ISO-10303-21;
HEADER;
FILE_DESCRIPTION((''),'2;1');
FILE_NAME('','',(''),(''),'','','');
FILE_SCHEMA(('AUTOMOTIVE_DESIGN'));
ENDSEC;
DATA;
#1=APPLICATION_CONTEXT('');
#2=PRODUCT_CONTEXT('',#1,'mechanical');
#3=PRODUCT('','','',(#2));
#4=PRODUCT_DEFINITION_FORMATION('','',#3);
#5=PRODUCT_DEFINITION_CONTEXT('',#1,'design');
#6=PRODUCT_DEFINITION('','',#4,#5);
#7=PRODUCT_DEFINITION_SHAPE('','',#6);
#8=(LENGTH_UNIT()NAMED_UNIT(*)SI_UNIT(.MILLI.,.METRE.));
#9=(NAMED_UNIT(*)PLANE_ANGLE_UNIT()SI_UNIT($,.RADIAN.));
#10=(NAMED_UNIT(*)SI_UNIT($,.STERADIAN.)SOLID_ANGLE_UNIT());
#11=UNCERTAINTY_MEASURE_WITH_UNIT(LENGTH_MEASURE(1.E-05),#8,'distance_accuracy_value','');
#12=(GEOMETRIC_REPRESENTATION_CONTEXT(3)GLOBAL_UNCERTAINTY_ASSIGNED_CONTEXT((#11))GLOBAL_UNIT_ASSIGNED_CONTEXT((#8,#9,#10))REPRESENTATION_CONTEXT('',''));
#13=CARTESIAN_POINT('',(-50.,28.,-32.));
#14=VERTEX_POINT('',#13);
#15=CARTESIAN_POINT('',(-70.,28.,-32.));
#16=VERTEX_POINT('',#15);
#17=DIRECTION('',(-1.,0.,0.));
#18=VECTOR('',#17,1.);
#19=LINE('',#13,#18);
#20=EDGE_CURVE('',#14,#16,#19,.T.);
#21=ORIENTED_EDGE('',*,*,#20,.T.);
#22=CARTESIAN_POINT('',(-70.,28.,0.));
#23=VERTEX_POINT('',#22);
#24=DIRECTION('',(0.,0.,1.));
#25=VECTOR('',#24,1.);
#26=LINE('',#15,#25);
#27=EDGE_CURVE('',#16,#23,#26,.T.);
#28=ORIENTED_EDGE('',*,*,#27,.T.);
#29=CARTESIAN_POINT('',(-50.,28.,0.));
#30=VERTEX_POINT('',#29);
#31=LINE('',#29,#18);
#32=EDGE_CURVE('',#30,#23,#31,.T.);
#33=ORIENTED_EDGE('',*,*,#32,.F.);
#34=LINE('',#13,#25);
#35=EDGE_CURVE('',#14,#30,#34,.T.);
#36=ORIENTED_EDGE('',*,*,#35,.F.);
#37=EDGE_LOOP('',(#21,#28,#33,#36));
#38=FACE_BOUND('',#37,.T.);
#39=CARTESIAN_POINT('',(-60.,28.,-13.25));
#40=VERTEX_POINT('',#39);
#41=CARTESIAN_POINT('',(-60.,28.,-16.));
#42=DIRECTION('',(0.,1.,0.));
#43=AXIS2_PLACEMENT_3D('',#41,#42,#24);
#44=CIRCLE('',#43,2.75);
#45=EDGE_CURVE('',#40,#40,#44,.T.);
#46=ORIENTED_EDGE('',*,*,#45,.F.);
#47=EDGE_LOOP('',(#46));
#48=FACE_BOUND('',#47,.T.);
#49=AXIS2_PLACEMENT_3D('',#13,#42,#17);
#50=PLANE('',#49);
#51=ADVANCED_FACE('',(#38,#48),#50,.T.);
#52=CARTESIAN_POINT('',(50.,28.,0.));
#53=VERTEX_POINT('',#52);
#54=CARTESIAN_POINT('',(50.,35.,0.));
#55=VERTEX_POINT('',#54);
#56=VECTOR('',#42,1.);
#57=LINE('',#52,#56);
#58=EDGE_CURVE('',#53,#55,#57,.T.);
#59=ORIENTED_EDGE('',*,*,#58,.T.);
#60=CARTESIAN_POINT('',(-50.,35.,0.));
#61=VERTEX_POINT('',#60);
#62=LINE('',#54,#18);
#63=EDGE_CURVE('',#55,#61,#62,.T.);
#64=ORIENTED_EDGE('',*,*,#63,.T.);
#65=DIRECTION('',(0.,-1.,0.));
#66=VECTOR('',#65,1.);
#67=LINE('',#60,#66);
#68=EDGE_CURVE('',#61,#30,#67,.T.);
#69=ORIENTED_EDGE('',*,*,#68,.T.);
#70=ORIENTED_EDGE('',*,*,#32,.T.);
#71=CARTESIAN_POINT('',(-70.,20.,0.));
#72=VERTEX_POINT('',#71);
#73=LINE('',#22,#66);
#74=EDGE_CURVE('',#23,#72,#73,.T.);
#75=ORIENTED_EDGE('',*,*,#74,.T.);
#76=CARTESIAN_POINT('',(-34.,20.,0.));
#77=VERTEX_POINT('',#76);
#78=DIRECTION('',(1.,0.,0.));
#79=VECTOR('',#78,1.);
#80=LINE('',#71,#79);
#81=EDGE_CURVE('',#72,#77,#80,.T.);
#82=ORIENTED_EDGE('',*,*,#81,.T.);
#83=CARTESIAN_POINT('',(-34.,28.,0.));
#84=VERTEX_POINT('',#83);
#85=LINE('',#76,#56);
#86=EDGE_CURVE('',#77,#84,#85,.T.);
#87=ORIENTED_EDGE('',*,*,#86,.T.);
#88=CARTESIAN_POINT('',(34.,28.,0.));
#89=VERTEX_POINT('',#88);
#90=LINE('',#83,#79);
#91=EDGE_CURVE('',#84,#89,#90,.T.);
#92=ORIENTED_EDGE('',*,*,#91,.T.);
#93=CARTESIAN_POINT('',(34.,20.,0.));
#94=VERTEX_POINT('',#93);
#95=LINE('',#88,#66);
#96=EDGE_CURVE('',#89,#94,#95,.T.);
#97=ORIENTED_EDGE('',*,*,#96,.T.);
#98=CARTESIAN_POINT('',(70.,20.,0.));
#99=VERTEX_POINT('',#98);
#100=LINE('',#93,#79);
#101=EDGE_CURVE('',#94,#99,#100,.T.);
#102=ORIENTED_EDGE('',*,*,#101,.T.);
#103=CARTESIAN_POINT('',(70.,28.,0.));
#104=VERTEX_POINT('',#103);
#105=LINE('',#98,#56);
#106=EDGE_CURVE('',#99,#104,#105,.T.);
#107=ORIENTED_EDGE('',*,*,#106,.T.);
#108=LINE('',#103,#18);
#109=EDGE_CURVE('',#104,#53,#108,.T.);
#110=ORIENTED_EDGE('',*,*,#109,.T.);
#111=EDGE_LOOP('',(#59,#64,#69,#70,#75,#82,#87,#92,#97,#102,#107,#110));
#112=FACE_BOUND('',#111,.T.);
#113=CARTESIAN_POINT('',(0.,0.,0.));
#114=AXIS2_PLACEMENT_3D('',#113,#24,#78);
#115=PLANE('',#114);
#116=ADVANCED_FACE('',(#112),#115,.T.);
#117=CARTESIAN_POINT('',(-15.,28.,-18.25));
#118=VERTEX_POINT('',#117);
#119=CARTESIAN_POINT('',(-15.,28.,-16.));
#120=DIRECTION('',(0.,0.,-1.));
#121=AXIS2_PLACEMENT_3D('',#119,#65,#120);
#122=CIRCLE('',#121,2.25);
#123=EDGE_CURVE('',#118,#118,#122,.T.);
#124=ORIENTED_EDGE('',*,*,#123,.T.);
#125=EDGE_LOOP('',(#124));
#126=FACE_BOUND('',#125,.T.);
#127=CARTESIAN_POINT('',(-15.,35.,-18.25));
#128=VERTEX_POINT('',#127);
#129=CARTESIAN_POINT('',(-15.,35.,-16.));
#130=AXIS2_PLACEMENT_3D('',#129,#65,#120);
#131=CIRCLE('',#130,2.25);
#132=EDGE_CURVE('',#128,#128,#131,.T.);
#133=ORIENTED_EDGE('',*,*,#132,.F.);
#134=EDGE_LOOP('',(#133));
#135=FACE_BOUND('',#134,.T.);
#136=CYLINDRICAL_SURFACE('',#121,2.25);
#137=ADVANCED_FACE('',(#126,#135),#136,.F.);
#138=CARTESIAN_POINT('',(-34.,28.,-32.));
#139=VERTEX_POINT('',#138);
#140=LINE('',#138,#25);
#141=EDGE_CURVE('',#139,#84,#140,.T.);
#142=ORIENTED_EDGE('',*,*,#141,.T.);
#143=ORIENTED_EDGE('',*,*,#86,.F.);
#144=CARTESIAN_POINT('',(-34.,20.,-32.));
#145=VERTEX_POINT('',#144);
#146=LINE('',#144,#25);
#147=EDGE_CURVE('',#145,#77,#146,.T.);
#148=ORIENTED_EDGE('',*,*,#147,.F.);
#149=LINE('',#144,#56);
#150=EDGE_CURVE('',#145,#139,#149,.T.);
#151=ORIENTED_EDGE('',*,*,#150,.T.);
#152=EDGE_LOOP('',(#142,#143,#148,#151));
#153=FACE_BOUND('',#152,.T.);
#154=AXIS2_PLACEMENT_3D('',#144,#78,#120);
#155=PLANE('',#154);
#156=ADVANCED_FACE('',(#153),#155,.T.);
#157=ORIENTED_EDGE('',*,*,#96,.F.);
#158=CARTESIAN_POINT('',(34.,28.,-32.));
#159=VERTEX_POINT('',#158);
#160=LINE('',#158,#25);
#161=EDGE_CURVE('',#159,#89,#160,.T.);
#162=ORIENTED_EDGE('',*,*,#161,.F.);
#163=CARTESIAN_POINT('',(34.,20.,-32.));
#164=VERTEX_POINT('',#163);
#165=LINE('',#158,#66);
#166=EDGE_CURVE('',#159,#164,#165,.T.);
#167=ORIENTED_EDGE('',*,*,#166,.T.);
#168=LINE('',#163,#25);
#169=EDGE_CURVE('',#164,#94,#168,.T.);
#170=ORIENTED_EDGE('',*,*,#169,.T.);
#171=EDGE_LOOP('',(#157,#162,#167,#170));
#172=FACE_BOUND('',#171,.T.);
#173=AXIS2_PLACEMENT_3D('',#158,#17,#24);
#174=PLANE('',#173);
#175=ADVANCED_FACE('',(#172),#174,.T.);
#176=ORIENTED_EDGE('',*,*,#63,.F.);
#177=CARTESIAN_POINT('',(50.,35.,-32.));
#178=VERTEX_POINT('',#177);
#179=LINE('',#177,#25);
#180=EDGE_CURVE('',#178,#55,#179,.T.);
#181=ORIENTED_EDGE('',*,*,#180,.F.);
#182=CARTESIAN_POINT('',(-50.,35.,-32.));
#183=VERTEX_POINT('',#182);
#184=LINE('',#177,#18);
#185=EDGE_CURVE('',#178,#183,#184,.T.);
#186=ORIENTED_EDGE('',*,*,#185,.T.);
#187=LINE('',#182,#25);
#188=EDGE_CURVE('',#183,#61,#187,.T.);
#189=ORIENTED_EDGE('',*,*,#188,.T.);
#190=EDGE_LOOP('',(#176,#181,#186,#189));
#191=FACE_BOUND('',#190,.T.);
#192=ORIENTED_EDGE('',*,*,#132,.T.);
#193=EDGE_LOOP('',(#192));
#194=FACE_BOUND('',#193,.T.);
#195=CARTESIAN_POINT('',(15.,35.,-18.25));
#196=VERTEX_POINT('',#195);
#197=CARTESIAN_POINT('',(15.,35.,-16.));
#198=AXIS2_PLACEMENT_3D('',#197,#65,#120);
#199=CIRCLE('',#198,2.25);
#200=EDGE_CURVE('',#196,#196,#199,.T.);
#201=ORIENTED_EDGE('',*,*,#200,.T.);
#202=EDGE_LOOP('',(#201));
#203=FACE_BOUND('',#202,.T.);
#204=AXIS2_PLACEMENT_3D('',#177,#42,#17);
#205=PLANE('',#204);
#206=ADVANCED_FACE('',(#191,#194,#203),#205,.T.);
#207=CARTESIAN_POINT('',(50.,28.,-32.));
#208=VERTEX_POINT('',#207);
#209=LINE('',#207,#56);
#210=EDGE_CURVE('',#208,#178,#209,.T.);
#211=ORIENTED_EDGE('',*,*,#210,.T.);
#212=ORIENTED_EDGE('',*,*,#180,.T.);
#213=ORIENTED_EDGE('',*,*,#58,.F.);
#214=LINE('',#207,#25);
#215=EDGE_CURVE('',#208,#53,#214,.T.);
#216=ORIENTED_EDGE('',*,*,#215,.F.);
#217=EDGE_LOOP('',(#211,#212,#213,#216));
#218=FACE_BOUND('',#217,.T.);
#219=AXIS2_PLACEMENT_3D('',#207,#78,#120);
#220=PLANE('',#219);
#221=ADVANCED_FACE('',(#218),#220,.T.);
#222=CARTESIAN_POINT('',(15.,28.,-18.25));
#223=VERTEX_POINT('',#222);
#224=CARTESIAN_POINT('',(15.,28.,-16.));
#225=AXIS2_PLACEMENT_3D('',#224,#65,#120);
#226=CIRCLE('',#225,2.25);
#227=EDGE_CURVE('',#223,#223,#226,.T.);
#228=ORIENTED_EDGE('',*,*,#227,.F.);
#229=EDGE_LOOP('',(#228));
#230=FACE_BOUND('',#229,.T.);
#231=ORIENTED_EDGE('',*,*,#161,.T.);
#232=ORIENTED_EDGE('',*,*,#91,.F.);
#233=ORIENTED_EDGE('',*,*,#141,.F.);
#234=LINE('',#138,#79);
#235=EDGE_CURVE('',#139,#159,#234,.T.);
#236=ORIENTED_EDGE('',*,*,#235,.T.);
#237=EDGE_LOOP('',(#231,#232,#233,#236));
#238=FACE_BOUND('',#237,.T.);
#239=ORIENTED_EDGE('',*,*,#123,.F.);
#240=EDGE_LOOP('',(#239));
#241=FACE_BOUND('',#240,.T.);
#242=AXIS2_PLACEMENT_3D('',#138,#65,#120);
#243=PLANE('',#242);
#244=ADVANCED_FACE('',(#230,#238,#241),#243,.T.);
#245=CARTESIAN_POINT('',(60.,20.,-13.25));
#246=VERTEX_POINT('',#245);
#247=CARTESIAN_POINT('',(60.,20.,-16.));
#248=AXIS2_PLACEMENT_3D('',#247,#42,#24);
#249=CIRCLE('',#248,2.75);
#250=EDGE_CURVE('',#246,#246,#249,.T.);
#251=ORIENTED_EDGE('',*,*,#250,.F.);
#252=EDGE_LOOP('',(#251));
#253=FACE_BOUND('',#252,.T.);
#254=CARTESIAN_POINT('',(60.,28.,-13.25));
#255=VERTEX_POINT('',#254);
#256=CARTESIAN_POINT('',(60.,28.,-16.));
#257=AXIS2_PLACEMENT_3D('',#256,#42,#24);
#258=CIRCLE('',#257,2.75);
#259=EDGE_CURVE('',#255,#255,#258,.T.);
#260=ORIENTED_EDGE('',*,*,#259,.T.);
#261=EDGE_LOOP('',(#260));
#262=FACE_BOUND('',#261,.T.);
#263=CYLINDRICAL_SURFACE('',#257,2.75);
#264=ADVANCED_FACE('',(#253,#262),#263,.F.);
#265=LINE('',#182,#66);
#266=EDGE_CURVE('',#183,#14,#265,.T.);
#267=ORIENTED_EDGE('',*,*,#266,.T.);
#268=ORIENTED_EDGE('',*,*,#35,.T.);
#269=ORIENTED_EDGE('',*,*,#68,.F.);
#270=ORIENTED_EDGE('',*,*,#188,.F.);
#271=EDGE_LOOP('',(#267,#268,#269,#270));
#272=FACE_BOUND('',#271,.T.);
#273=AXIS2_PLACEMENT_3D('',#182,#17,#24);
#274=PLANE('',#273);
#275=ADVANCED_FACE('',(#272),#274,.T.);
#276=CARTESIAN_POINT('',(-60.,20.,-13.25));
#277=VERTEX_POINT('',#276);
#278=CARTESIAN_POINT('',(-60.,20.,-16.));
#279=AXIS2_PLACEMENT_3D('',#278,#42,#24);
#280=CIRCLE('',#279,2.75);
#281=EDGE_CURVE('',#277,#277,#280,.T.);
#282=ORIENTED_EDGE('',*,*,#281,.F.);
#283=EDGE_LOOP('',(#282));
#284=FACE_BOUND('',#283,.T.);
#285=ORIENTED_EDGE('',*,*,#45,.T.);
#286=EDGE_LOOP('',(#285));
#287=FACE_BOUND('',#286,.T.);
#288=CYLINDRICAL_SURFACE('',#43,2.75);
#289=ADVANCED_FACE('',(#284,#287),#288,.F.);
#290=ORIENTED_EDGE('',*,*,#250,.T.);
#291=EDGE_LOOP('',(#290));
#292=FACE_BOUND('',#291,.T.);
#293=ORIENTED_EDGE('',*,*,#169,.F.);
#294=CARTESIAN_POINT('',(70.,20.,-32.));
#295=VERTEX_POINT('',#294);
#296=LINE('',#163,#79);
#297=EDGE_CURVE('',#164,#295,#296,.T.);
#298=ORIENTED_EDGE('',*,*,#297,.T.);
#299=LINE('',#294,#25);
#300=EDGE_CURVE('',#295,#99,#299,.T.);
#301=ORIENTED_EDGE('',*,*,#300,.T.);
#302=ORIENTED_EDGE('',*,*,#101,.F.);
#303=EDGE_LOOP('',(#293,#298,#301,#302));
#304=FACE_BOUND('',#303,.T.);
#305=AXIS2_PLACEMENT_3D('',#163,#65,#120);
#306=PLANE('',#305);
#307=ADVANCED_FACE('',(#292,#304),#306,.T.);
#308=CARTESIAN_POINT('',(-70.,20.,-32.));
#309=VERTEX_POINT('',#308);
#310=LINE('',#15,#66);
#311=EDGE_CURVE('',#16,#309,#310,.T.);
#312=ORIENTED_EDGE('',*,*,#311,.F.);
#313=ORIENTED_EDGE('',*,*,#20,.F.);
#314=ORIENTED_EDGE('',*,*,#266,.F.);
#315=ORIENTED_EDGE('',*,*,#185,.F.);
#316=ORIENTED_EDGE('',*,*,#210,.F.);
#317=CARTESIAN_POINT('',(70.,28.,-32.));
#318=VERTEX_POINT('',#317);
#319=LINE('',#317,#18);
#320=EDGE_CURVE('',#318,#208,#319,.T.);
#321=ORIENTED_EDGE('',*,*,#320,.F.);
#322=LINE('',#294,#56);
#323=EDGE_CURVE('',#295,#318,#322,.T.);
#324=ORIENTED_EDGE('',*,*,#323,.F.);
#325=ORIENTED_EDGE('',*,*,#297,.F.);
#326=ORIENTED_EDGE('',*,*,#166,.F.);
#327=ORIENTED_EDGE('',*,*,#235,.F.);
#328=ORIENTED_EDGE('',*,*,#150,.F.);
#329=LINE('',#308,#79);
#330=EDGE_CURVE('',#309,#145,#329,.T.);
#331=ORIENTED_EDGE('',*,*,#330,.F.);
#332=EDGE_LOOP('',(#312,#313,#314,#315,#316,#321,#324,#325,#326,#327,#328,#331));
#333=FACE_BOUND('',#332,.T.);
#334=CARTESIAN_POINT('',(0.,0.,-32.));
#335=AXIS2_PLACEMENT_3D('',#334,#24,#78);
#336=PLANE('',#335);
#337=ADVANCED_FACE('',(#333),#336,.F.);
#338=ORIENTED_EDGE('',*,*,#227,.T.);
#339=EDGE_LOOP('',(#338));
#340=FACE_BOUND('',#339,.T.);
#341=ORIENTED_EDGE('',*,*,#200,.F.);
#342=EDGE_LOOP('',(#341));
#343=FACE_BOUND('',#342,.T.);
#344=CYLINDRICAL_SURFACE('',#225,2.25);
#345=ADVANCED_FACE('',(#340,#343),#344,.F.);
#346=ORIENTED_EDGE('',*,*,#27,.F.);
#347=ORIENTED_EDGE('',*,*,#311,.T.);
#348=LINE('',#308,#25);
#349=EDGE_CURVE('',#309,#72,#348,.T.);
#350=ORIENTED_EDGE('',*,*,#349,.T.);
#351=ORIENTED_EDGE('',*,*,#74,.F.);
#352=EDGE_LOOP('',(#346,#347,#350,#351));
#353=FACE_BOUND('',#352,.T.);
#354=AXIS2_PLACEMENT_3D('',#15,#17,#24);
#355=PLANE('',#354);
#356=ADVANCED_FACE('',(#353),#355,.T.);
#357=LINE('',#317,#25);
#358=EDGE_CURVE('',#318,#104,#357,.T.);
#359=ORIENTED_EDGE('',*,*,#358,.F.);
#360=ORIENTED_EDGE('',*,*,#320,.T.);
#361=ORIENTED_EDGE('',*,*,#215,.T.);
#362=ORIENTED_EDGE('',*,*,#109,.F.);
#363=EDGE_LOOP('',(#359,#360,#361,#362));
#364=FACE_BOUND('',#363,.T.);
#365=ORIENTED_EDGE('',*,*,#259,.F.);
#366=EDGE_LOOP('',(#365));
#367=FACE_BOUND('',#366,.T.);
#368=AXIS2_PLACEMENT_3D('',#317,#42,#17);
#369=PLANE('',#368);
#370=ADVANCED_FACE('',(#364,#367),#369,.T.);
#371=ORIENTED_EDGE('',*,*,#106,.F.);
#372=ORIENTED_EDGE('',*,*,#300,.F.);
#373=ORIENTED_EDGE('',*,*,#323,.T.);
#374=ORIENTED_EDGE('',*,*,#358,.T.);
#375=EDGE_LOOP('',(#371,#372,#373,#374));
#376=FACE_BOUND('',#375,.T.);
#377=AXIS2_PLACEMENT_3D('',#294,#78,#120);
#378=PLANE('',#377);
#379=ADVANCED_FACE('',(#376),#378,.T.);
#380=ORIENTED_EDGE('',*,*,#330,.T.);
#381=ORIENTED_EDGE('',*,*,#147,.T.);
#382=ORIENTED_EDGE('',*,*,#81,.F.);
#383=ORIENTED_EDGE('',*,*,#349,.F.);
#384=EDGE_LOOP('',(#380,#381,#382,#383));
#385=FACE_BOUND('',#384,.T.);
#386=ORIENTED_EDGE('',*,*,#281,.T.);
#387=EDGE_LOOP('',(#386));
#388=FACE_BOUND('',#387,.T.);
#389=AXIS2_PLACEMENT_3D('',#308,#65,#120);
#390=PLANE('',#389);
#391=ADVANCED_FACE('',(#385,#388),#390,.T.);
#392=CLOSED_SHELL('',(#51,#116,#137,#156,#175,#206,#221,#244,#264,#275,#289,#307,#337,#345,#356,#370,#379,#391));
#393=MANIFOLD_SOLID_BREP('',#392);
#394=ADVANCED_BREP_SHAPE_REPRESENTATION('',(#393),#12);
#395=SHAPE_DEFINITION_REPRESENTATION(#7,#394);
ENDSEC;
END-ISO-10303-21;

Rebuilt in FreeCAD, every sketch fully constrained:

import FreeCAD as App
import Part
import Sketcher


def add_polygon(sketch, points):
    """Adds a closed chain of lines whose ends are joined by coincident constraints."""
    first, n = sketch.GeometryCount, len(points)
    for a, b in zip(points, points[1:] + points[:1]):
        sketch.addGeometry(Part.LineSegment(App.Vector(*a, 0), App.Vector(*b, 0)), False)
    for i in range(n):
        sketch.addConstraint(Sketcher.Constraint("Coincident", first + i, 2, first + (i + 1) % n, 1))

doc = App.newDocument("Part")
body = doc.addObject("PartDesign::Body", "Body")

# Sketch on XY plane
sketch1 = doc.addObject("Sketcher::SketchObject", "Sketch")
body.addObject(sketch1)
sketch1.AttachmentSupport = (doc.XY_Plane, [""])
sketch1.MapMode = "FlatFace"
add_polygon(sketch1, [(-70, 20), (-34, 20), (-34, 28), (34, 28), (34, 20), (70, 20), (70, 28), (50, 28), (50, 35), (-50, 35), (-50, 28), (-70, 28)])  # lines 0-11
sketch1.addConstraint(Sketcher.Constraint("Horizontal", 0))
sketch1.addConstraint(Sketcher.Constraint("Vertical", 1))
sketch1.addConstraint(Sketcher.Constraint("Horizontal", 2))
sketch1.addConstraint(Sketcher.Constraint("Vertical", 3))
sketch1.addConstraint(Sketcher.Constraint("Horizontal", 4))
sketch1.addConstraint(Sketcher.Constraint("Vertical", 5))
sketch1.addConstraint(Sketcher.Constraint("Horizontal", 6))
sketch1.addConstraint(Sketcher.Constraint("Vertical", 7))
sketch1.addConstraint(Sketcher.Constraint("Horizontal", 8))
sketch1.addConstraint(Sketcher.Constraint("Vertical", 9))
sketch1.addConstraint(Sketcher.Constraint("Horizontal", 10))
sketch1.addConstraint(Sketcher.Constraint("Vertical", 11))
sketch1.addConstraint(Sketcher.Constraint("Symmetric", 0, 2, 3, 2, -2))
sketch1.addConstraint(Sketcher.Constraint("Symmetric", 6, 2, 9, 2, -2))
sketch1.addConstraint(Sketcher.Constraint("Horizontal", 2, 2, 5, 2))
sketch1.addConstraint(Sketcher.Constraint("Equal", 0, 4))
sketch1.addConstraint(Sketcher.Constraint("DistanceX", 0, 1, 0, 2, 36.0))
sketch1.addConstraint(Sketcher.Constraint("DistanceX", 2, 1, 2, 2, 68.0))
sketch1.addConstraint(Sketcher.Constraint("DistanceX", 6, 2, 6, 1, 20.0))
sketch1.addConstraint(Sketcher.Constraint("DistanceY", 1, 1, 1, 2, 8.0))
sketch1.addConstraint(Sketcher.Constraint("DistanceY", 7, 1, 7, 2, 7.0))
sketch1.addConstraint(Sketcher.Constraint("DistanceY", -1, 1, 0, 2, 20.0))
pad1 = doc.addObject("PartDesign::Pad", "Pad")
body.addObject(pad1)
pad1.Profile = sketch1
pad1.Length = 32
pad1.Reversed = True

# Sketch on XZ plane
sketch2 = doc.addObject("Sketcher::SketchObject", "Sketch001")
body.addObject(sketch2)
sketch2.AttachmentSupport = (doc.XZ_Plane, [""])
sketch2.MapMode = "FlatFace"
sketch2.AttachmentOffset = App.Placement(App.Vector(0, 0, -28), App.Rotation())
sketch2.addGeometry(Part.Circle(App.Vector(-15, -16, 0), App.Vector(0, 0, 1), 2.2), False)
sketch2.addGeometry(Part.Circle(App.Vector(15, -16, 0), App.Vector(0, 0, 1), 2.2), False)
sketch2.addConstraint(Sketcher.Constraint("Equal", 0, 1))
sketch2.addConstraint(Sketcher.Constraint("Symmetric", 0, 3, 1, 3, -2))
sketch2.addConstraint(Sketcher.Constraint("Diameter", 0, 4.5))
sketch2.addConstraint(Sketcher.Constraint("DistanceX", 0, 3, -1, 1, 15.0))
sketch2.addConstraint(Sketcher.Constraint("DistanceY", 0, 3, -1, 1, 16.0))
doc.recompute()
hole = doc.addObject("PartDesign::Hole", "Hole")
body.addObject(hole)
hole.Profile = sketch2
hole.ThreadType = "None"
hole.Diameter = 4.5
hole.DepthType = "ThroughAll"

# Sketch on XZ plane
sketch3 = doc.addObject("Sketcher::SketchObject", "Sketch002")
body.addObject(sketch3)
sketch3.AttachmentSupport = (doc.XZ_Plane, [""])
sketch3.MapMode = "FlatFace"
sketch3.AttachmentOffset = App.Placement(App.Vector(0, 0, -28), App.Rotation())
sketch3.addGeometry(Part.Circle(App.Vector(-60, -16, 0), App.Vector(0, 0, 1), 2.8), False)
sketch3.addGeometry(Part.Circle(App.Vector(60, -16, 0), App.Vector(0, 0, 1), 2.8), False)
sketch3.addConstraint(Sketcher.Constraint("Equal", 0, 1))
sketch3.addConstraint(Sketcher.Constraint("Symmetric", 0, 3, 1, 3, -2))
sketch3.addConstraint(Sketcher.Constraint("Diameter", 0, 5.5))
sketch3.addConstraint(Sketcher.Constraint("DistanceX", 0, 3, -1, 1, 60.0))
sketch3.addConstraint(Sketcher.Constraint("DistanceY", 0, 3, -1, 1, 16.0))
doc.recompute()
hole2 = doc.addObject("PartDesign::Hole", "Hole001")
body.addObject(hole2)
hole2.Profile = sketch3
hole2.ThreadType = "None"
hole2.Diameter = 5.5
hole2.DepthType = "ThroughAll"
hole2.Reversed = True

doc.recompute()
